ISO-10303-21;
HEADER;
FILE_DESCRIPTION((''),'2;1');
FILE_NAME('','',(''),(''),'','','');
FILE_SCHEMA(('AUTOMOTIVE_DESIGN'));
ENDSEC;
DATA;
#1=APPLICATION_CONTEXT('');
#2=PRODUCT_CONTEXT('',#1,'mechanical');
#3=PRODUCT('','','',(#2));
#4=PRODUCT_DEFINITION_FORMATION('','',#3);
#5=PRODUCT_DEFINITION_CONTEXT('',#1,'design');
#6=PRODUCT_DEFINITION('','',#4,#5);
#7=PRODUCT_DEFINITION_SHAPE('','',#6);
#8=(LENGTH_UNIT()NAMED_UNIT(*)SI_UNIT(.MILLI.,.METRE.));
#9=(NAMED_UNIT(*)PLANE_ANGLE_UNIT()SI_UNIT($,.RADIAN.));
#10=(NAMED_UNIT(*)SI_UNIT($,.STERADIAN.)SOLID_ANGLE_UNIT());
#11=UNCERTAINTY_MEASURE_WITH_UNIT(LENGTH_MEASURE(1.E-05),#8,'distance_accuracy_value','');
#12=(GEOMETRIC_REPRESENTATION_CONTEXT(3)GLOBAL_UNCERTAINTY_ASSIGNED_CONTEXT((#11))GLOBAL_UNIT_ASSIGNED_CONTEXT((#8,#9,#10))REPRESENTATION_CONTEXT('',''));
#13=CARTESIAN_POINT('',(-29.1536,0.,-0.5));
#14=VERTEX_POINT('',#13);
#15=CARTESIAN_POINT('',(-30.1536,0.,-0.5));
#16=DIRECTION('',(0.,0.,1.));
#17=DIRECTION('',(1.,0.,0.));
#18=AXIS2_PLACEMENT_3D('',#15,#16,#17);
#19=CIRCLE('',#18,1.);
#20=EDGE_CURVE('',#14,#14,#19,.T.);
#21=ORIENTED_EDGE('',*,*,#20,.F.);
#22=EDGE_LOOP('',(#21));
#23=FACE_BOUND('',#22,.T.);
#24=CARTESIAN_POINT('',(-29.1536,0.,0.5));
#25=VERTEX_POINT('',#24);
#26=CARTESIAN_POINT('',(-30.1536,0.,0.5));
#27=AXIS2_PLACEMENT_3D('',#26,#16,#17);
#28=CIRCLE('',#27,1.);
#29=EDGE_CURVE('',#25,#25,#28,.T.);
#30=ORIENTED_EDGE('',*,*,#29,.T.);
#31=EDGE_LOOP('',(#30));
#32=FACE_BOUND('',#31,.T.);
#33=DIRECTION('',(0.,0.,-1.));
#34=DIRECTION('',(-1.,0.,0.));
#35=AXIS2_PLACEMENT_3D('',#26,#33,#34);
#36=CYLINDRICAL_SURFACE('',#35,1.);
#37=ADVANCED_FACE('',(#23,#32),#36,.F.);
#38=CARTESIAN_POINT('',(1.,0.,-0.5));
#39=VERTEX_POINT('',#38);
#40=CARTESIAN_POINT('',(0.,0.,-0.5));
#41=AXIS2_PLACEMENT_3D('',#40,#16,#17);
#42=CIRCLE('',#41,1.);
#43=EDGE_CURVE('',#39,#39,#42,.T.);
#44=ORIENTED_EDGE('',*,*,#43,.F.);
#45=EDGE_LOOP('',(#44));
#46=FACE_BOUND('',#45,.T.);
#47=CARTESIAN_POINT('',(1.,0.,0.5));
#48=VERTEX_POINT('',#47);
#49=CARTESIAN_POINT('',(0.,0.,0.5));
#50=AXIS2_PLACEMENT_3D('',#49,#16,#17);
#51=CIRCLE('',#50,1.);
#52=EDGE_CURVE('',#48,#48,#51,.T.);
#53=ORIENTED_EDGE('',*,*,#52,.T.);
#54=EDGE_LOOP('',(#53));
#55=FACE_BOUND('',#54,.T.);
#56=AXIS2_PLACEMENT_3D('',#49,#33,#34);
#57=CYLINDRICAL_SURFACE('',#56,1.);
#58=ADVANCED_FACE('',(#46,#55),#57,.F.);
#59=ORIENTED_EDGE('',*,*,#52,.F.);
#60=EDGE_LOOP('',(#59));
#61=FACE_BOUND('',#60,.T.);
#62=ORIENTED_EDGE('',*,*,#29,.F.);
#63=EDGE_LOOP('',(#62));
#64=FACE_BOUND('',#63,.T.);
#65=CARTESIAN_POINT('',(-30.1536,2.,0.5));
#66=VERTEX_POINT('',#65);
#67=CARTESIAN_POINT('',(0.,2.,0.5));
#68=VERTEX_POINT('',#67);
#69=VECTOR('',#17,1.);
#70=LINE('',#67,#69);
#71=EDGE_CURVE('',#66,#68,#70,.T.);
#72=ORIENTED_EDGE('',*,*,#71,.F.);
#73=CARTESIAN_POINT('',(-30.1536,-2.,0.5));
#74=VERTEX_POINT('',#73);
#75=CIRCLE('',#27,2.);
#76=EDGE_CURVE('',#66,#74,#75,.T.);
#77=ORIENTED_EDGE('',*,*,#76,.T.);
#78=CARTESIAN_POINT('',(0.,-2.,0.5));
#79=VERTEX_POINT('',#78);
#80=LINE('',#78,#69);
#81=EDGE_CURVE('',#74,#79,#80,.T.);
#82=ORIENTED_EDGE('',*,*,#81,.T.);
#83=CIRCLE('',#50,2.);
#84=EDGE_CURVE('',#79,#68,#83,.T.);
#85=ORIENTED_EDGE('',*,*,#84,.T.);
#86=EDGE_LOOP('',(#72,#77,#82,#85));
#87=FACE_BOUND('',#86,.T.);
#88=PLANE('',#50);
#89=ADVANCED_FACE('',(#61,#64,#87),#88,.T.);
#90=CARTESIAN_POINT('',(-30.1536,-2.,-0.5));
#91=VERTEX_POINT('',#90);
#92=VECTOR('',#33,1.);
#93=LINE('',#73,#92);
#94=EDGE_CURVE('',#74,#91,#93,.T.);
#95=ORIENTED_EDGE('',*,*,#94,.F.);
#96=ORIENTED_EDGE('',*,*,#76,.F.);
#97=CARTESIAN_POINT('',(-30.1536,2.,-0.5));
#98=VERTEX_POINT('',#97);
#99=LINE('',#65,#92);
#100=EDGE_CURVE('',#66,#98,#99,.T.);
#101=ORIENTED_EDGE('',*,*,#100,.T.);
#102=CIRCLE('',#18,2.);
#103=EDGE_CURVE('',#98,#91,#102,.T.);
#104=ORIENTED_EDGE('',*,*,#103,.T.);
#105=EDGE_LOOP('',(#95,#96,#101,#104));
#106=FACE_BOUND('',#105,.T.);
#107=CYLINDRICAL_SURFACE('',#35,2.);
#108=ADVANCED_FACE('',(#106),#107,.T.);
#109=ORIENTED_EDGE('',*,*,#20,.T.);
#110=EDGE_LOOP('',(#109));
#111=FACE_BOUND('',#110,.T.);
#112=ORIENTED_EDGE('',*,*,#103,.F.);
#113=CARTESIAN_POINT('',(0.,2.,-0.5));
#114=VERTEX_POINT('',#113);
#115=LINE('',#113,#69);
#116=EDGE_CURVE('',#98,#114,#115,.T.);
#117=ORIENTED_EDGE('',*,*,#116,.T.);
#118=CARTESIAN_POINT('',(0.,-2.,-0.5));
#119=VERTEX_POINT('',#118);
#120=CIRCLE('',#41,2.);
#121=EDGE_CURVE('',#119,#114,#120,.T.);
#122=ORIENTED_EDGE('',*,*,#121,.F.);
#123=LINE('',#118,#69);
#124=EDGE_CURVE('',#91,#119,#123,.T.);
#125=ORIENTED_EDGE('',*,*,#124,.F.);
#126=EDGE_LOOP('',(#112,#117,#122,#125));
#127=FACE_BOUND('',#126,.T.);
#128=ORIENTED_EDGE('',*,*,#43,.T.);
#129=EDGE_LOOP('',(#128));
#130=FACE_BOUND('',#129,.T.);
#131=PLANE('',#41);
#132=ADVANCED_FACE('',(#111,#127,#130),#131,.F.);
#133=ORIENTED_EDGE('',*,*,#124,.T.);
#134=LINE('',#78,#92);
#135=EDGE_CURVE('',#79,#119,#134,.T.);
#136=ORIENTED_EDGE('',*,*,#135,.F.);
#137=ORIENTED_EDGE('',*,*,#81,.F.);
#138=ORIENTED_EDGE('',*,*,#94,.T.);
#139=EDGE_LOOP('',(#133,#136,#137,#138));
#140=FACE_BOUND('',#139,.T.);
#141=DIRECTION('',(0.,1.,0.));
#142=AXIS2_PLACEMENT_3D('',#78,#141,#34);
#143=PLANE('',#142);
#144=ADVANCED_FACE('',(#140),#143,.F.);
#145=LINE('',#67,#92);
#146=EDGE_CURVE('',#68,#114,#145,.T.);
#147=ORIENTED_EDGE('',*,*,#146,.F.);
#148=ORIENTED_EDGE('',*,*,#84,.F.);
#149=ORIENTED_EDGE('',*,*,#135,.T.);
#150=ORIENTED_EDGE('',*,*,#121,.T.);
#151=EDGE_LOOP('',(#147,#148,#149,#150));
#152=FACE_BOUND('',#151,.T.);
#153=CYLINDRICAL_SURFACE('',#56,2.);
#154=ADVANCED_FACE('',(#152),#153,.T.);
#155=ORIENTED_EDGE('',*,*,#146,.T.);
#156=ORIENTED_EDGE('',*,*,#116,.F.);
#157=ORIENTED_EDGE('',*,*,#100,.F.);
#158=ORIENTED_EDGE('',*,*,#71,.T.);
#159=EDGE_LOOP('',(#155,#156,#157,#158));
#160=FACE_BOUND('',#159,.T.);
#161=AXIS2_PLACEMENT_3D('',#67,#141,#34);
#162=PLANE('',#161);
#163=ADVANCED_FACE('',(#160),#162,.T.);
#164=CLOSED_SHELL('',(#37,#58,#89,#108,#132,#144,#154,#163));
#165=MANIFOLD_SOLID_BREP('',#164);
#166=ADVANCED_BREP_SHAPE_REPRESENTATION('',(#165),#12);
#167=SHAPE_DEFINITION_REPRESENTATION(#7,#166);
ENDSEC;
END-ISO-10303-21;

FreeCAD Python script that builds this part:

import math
import FreeCAD as App
import Part
import Sketcher

V = App.Vector

doc = App.newDocument("Part")
body = doc.addObject("PartDesign::Body", "Body")

# Sketch on XY plane
sketch1 = body.newObject("Sketcher::SketchObject", "Sketch")
sketch1.AttachmentSupport = (doc.getObject("XY_Plane"), [""])
sketch1.MapMode = "FlatFace"
sketch1.addGeometry(Part.LineSegment(V(0, 2, 0), V(-30.2, 2, 0)), False)
sketch1.addGeometry(Part.ArcOfCircle(Part.Circle(V(-30.2, 0, 0), V(0, 0, 1), 2), math.radians(90), math.radians(270)), False)
sketch1.addGeometry(Part.LineSegment(V(-30.2, -2, 0), V(0, -2, 0)), False)
sketch1.addGeometry(Part.ArcOfCircle(Part.Circle(V(0, 0, 0), V(0, 0, 1), 2), math.radians(-90), math.radians(90)), False)
sketch1.addGeometry(Part.Circle(V(-30.2, 0, 0), V(0, 0, 1), 1), False)
sketch1.addGeometry(Part.Circle(V(0, 0, 0), V(0, 0, 1), 1), False)
sketch1.addConstraint(Sketcher.Constraint("Tangent", 0, 2, 1, 1))
sketch1.addConstraint(Sketcher.Constraint("Tangent", 1, 2, 2, 1))
sketch1.addConstraint(Sketcher.Constraint("Tangent", 2, 2, 3, 1))
sketch1.addConstraint(Sketcher.Constraint("Tangent", 3, 2, 0, 1))
sketch1.addConstraint(Sketcher.Constraint("Horizontal", 0))
sketch1.addConstraint(Sketcher.Constraint("Horizontal", 2))
sketch1.addConstraint(Sketcher.Constraint("Coincident", 3, 3, -1, 1))
sketch1.addConstraint(Sketcher.Constraint("Coincident", 5, 3, -1, 1))
sketch1.addConstraint(Sketcher.Constraint("Coincident", 4, 3, 1, 3))
sketch1.addConstraint(Sketcher.Constraint("Equal", 4, 5))
sketch1.addConstraint(Sketcher.Constraint("Diameter", 4, 2.0))
sketch1.addConstraint(Sketcher.Constraint("Radius", 1, 2.0))
sketch1.addConstraint(Sketcher.Constraint("DistanceX", 0, 2, 0, 1, 30.1536))
pad1 = body.newObject("PartDesign::Pad", "Pad")
pad1.Profile = sketch1
pad1.Length = 1
pad1.Midplane = True

doc.recompute()
